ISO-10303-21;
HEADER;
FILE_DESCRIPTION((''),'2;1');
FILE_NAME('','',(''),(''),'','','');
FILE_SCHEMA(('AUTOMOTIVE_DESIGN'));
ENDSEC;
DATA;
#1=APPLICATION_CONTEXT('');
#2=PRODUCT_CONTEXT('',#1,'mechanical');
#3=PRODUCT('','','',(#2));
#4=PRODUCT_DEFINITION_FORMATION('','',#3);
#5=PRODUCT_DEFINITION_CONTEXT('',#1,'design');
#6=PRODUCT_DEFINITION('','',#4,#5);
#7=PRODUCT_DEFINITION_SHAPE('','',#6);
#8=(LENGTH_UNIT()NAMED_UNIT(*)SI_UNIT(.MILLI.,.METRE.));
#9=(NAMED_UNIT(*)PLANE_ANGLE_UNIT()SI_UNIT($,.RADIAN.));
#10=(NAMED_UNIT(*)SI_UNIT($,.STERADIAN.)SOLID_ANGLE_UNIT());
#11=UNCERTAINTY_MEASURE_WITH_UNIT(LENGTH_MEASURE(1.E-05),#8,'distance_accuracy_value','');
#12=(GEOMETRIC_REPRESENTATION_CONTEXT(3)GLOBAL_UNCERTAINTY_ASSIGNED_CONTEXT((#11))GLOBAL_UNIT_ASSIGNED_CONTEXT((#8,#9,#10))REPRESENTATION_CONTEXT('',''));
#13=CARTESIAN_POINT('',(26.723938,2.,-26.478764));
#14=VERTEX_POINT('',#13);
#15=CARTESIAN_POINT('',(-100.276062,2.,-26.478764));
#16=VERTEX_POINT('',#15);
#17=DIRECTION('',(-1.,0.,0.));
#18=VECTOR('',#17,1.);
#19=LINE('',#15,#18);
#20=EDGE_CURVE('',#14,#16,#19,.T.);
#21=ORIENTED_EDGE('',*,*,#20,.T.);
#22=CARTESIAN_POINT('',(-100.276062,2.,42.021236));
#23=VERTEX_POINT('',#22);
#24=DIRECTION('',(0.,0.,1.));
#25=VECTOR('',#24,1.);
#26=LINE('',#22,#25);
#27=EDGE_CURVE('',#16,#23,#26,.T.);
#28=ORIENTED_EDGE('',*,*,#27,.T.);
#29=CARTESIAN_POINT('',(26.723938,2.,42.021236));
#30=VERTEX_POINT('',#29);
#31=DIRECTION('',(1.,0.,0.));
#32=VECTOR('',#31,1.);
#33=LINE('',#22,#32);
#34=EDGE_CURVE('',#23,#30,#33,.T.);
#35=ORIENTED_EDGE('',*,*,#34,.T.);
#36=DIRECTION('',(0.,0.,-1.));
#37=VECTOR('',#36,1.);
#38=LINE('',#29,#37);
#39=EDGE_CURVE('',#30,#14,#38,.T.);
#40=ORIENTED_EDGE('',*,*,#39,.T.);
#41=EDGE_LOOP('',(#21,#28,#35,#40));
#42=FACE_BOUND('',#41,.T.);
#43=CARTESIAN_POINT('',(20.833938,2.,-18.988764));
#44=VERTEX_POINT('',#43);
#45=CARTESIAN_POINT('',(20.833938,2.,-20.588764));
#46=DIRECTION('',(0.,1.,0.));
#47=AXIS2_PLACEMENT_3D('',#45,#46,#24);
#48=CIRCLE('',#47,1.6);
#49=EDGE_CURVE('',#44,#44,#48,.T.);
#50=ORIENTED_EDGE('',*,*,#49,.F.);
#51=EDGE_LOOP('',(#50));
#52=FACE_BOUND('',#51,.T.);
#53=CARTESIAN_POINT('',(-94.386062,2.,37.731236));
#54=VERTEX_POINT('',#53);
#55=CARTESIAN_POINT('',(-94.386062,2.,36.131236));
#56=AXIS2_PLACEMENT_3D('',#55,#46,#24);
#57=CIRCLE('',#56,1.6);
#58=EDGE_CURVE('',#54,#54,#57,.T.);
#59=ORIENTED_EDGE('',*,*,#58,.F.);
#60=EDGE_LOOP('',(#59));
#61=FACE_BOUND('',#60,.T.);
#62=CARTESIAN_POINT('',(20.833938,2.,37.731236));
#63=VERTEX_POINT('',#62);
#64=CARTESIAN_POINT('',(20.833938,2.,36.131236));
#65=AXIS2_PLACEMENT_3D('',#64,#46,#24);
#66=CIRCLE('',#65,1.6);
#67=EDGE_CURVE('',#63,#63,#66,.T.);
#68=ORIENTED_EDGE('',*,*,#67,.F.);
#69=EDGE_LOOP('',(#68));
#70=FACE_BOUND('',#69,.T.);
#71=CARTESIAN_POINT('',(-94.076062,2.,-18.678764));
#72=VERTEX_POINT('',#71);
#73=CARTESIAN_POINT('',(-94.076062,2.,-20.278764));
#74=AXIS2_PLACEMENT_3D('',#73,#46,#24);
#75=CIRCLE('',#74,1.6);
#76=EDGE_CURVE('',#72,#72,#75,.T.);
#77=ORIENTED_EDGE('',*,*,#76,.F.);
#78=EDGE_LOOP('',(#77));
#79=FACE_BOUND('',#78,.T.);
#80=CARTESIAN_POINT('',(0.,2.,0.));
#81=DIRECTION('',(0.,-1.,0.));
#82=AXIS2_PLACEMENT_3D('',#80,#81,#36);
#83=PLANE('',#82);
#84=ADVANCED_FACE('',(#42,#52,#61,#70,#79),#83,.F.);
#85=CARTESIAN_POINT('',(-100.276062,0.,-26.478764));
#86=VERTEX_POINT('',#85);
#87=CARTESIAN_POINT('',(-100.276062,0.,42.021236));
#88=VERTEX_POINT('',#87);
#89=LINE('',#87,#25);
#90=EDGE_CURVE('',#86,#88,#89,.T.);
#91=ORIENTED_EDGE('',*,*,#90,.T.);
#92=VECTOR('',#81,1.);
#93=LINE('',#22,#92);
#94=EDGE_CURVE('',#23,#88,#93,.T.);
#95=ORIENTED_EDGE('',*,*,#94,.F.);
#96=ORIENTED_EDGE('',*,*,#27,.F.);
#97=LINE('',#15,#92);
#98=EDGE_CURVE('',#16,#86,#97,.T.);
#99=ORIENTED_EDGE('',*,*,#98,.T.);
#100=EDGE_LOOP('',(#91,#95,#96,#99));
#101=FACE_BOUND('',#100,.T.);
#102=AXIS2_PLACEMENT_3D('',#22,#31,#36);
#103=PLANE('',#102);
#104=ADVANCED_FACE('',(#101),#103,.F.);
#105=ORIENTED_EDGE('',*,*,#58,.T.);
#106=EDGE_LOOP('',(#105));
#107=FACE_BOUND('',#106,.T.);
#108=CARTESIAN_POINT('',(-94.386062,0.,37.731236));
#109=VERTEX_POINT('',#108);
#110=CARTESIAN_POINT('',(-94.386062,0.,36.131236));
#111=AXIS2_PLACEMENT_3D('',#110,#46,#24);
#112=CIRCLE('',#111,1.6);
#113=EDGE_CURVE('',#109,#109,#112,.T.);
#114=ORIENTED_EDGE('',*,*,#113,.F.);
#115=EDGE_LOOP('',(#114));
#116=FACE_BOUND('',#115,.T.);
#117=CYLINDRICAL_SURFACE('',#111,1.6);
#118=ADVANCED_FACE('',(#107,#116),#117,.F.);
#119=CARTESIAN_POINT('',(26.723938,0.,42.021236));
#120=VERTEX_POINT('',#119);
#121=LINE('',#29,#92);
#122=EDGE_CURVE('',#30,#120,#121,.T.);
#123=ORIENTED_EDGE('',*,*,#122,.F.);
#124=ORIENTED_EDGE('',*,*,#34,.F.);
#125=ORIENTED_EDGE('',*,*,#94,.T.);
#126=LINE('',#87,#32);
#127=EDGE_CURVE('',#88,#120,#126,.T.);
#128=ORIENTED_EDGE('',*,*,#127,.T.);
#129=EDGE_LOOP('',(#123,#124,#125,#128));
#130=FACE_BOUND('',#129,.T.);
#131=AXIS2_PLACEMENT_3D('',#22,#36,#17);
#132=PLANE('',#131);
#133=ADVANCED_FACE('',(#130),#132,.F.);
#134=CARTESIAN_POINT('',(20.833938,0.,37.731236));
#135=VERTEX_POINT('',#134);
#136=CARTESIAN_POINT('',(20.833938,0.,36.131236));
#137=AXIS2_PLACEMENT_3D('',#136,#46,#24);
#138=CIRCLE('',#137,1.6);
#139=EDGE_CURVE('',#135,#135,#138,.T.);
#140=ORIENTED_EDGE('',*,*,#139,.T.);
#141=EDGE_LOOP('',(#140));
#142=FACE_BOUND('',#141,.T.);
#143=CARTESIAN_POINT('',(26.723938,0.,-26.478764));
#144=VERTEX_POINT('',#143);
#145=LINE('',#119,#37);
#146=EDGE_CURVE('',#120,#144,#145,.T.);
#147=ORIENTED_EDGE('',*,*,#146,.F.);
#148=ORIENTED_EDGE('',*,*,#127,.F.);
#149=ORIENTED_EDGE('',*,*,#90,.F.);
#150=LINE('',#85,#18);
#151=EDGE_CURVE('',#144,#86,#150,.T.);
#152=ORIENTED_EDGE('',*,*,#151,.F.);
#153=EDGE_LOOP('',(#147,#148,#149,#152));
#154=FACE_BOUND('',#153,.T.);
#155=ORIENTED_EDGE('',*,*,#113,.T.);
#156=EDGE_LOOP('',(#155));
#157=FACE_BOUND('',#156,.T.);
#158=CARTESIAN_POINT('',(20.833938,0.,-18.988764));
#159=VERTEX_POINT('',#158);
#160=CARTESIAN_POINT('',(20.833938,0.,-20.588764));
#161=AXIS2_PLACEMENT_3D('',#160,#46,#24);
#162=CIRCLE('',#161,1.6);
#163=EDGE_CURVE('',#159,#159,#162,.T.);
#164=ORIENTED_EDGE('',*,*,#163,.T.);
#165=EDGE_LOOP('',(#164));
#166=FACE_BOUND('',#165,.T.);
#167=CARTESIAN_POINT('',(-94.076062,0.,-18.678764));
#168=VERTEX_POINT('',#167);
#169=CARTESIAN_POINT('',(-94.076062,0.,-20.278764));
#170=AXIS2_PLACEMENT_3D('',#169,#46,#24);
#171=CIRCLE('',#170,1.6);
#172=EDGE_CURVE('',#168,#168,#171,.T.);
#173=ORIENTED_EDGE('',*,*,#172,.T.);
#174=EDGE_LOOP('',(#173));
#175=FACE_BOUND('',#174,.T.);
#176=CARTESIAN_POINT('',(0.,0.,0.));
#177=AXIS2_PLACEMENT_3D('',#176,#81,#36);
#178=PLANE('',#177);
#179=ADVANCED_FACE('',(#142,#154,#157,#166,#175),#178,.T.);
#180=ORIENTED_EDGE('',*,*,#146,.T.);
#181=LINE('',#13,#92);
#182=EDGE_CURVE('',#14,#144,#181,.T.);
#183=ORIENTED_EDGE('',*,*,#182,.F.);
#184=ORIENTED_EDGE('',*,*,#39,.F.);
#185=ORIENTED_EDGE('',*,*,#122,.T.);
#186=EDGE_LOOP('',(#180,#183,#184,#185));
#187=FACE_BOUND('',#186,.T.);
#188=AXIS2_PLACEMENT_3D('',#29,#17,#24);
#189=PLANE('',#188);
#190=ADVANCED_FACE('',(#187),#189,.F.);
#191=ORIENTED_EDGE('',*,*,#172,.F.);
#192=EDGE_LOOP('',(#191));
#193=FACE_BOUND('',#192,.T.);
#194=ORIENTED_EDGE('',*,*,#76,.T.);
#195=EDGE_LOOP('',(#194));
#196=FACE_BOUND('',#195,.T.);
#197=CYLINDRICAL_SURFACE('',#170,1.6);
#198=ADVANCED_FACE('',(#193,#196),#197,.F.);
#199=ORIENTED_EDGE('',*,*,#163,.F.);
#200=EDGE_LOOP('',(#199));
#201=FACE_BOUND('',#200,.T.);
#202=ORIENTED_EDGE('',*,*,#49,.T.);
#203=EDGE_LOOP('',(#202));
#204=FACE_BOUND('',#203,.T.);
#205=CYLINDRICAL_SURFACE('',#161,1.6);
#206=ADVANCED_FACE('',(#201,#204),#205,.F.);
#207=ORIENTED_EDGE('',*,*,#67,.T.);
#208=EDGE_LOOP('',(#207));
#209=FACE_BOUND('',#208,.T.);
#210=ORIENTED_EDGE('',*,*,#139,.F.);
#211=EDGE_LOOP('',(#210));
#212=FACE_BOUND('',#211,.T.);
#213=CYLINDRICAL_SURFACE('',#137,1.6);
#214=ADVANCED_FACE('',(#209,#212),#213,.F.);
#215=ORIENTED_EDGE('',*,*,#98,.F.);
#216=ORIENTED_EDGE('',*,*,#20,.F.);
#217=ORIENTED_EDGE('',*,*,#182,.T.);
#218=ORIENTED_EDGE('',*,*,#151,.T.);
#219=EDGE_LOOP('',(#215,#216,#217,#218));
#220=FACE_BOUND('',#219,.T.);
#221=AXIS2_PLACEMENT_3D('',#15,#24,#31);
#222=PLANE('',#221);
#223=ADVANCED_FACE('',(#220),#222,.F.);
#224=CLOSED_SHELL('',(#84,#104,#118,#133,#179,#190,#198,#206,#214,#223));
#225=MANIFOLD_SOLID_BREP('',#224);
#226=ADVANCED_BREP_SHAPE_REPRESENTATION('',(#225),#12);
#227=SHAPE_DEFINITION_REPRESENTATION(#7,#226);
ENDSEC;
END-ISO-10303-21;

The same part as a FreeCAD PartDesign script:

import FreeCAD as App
import Part
import Sketcher
Q = App.Units.Quantity


def add_polygon(sketch, points):
    """Adds a closed chain of lines whose ends are joined by coincident constraints."""
    first, n = sketch.GeometryCount, len(points)
    for a, b in zip(points, points[1:] + points[:1]):
        sketch.addGeometry(Part.LineSegment(App.Vector(*a, 0), App.Vector(*b, 0)), False)
    for i in range(n):
        sketch.addConstraint(Sketcher.Constraint("Coincident", first + i, 2, first + (i + 1) % n, 1))

doc = App.newDocument("Part")
params = doc.addObject("Spreadsheet::Sheet", "Params")
for row, (alias, value) in enumerate([
    ("sketch1_width", "127 mm"),
    ("sketch1_height", "68.5 mm"),
    ("pad1_length", "2 mm"),
    ("sketch2_diameter", "3.2 mm"),
    ("pocket1_length", "2 mm"),
], start=1):
    params.set(f"A{row}", alias)
    params.set(f"B{row}", "=" + value)
    params.setAlias(f"B{row}", alias)

body = doc.addObject("PartDesign::Body", "Body")

# Sketch on XZ plane
sketch1 = body.newObject("Sketcher::SketchObject", "Sketch")
sketch1.AttachmentSupport = (doc.getObject("XZ_Plane"), [""])
sketch1.MapMode = "FlatFace"
add_polygon(sketch1, [(-100, -26), (-100, 42), (27, 42), (27, -26)])  # lines 0-3
sketch1.addConstraint([
    Sketcher.Constraint("Vertical", 0),
    Sketcher.Constraint("Horizontal", 1),
    Sketcher.Constraint("Vertical", 2),
    Sketcher.Constraint("Horizontal", 3),
    Sketcher.Constraint("DistanceX", 1, 1, 1, 2, Q("127 mm")),
    Sketcher.Constraint("DistanceY", 0, 1, 0, 2, Q("68.5 mm")),
    Sketcher.Constraint("DistanceX", 0, 2, -1, 1, Q("100.276062 mm")),
    Sketcher.Constraint("DistanceY", -1, 1, 0, 2, Q("42.021236 mm")),
])
sketch1.setExpression("Constraints[8]", "Params.sketch1_width")
sketch1.setExpression("Constraints[9]", "Params.sketch1_height")
pad1 = body.newObject("PartDesign::Pad", "Pad")
pad1.Profile = sketch1
pad1.setExpression("Length", "Params.pad1_length")
pad1.Reversed = True

# Sketch on XZ plane
sketch2 = body.newObject("Sketcher::SketchObject", "Sketch001")
sketch2.AttachmentSupport = (doc.getObject("XZ_Plane"), [""])
sketch2.MapMode = "FlatFace"
sketch2.AttachmentOffset = App.Placement(App.Vector(0, 0, -2), App.Rotation())
sketch2.addGeometry([
    Part.Circle(App.Vector(-94.1, -20.3, 0), App.Vector(0, 0, 1), 1.6),
    Part.Circle(App.Vector(-94.4, 36.1, 0), App.Vector(0, 0, 1), 1.6),
    Part.Circle(App.Vector(20.8, 36.1, 0), App.Vector(0, 0, 1), 1.6),
    Part.Circle(App.Vector(20.8, -20.6, 0), App.Vector(0, 0, 1), 1.6),
], False)
sketch2.addConstraint([
    Sketcher.Constraint("Equal", 0, 1),
    Sketcher.Constraint("Equal", 1, 2),
    Sketcher.Constraint("Equal", 2, 3),
    Sketcher.Constraint("Horizontal", 1, 3, 2, 3),
    Sketcher.Constraint("Vertical", 2, 3, 3, 3),
    Sketcher.Constraint("Diameter", 0, Q("3.2 mm")),
    Sketcher.Constraint("DistanceX", 1, 3, 0, 3, Q("0.31 mm")),
    Sketcher.Constraint("DistanceY", 0, 3, 1, 3, Q("56.41 mm")),
    Sketcher.Constraint("DistanceX", 1, 3, 2, 3, Q("115.22 mm")),
    Sketcher.Constraint("DistanceY", 3, 3, 2, 3, Q("56.72 mm")),
    Sketcher.Constraint("DistanceX", 0, 3, -1, 1, Q("94.076062 mm")),
    Sketcher.Constraint("DistanceY", 0, 3, -1, 1, Q("20.278764 mm")),
])
sketch2.setExpression("Constraints[5]", "Params.sketch2_diameter")
pocket1 = body.newObject("PartDesign::Pocket", "Pocket")
pocket1.Profile = sketch2
pocket1.setExpression("Length", "Params.pocket1_length")
pocket1.Reversed = True

doc.recompute()
